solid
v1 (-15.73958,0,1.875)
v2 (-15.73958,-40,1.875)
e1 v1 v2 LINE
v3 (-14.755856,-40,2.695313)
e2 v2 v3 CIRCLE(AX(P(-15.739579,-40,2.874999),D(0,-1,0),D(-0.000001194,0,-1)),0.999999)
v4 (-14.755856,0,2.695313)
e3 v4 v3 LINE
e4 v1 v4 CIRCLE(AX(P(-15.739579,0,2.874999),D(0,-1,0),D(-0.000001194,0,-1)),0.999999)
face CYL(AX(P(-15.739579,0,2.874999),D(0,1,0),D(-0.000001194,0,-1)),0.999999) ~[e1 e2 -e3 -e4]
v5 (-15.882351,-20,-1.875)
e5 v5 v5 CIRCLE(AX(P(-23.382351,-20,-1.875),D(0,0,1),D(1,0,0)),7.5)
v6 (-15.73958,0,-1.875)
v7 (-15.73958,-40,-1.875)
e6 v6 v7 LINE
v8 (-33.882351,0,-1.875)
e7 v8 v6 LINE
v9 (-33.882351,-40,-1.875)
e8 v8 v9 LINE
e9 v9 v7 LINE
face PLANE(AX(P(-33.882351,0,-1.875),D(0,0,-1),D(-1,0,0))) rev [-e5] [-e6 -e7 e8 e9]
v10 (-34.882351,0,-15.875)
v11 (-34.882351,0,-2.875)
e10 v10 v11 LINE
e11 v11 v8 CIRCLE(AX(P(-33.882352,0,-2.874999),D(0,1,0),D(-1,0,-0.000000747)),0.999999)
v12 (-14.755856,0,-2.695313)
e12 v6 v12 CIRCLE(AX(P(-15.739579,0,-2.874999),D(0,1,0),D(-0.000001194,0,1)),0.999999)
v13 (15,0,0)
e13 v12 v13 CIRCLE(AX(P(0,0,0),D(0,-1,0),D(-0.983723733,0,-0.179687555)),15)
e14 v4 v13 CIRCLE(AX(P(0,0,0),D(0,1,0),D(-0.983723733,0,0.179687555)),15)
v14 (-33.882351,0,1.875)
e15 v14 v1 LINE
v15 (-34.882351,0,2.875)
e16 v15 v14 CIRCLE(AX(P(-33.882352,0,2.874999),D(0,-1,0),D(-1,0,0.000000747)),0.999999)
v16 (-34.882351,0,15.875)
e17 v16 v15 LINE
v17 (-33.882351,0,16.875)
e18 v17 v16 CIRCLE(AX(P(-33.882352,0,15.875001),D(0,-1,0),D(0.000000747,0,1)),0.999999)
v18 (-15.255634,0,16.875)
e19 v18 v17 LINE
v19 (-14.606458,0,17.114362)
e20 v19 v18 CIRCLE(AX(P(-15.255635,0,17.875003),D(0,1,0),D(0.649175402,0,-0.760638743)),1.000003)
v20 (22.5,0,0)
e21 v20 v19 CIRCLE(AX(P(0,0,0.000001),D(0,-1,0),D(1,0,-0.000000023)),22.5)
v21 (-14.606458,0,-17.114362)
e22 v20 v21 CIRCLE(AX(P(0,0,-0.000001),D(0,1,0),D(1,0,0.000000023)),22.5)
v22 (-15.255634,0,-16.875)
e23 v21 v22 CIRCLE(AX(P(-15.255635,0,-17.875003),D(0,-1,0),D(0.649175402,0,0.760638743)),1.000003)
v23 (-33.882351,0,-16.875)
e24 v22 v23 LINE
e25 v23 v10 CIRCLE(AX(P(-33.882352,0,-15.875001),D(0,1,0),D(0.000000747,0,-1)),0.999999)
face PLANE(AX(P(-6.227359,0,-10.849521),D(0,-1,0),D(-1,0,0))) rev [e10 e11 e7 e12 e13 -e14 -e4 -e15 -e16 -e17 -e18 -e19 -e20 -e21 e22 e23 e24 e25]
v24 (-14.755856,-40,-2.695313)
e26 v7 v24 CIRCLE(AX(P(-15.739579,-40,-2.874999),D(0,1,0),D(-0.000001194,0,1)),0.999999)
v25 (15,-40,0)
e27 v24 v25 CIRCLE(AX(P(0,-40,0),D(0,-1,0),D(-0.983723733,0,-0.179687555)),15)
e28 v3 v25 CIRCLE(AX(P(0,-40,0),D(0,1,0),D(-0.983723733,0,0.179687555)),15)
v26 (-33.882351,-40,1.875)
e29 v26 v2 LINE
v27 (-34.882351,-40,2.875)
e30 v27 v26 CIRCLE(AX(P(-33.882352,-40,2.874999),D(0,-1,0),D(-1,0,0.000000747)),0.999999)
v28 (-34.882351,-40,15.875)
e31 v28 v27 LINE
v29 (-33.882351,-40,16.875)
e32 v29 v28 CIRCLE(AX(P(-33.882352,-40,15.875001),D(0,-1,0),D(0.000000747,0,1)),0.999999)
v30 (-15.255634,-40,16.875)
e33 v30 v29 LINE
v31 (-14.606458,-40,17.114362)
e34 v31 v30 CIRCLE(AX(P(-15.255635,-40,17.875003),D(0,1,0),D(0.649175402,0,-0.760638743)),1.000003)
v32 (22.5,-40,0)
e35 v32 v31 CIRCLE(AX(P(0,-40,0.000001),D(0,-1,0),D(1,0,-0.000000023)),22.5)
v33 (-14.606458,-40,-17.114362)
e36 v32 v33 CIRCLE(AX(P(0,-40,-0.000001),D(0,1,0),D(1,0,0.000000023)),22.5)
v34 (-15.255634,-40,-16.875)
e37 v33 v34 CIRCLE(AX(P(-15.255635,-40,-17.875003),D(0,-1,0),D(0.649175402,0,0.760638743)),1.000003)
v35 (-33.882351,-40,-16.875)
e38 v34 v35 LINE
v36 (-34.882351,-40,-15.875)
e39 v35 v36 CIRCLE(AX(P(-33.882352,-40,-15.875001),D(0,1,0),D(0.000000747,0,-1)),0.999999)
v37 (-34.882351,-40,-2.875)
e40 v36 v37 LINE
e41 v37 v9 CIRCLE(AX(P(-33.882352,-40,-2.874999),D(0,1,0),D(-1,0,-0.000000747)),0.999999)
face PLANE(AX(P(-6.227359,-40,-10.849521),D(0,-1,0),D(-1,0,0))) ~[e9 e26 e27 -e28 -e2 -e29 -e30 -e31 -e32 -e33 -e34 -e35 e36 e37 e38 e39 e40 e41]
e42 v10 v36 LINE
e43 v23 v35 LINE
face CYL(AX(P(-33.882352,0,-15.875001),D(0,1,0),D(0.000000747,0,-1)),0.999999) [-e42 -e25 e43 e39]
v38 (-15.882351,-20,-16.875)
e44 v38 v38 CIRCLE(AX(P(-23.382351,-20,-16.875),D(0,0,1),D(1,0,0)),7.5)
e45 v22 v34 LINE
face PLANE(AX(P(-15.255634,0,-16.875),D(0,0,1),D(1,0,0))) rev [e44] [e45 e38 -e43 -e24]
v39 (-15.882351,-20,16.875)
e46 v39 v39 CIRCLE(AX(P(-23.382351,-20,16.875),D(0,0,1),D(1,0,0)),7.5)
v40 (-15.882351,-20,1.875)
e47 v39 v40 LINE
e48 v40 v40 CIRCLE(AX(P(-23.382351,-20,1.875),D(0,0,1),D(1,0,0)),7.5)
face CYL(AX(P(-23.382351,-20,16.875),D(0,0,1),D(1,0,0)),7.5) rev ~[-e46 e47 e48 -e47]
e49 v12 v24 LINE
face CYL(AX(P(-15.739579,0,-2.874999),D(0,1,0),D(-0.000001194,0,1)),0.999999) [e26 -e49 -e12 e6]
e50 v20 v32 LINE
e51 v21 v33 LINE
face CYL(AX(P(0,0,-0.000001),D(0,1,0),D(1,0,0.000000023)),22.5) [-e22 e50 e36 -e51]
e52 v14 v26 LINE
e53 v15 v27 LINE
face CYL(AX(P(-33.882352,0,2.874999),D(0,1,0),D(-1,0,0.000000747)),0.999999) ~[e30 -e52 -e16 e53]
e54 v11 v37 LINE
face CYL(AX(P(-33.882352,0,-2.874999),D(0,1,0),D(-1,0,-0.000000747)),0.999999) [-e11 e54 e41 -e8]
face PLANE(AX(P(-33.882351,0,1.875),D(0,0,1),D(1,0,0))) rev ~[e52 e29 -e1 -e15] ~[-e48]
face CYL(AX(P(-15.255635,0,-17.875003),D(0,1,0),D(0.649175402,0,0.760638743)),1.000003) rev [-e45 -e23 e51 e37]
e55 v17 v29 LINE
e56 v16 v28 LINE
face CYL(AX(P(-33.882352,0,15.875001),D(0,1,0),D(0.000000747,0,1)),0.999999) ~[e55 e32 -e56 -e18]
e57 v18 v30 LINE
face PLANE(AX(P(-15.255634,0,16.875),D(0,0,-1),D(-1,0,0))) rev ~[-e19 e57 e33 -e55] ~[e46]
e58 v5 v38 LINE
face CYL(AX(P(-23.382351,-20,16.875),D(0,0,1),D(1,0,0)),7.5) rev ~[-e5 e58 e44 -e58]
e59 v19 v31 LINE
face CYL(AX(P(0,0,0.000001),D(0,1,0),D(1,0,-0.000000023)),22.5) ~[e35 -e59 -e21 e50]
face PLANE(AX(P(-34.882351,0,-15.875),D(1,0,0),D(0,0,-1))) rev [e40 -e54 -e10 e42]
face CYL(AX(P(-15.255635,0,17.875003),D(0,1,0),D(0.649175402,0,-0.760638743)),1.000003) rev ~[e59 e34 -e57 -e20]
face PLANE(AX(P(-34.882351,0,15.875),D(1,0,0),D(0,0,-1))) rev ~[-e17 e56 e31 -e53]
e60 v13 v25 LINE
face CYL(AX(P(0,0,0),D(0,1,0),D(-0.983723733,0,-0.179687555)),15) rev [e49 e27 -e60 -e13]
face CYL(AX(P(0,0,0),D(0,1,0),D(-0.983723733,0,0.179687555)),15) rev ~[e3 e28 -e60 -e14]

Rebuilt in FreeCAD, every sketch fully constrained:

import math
import FreeCAD as App
import Part
import Sketcher

V = App.Vector
Q = App.Units.Quantity

doc = App.newDocument("Part")
body = doc.addObject("PartDesign::Body", "Body")

sketch1 = doc.addObject("Sketcher::SketchObject", "Sketch")
body.addObject(sketch1)
sketch1.AttachmentSupport = (doc.XZ_Plane, [""])
sketch1.MapMode = "FlatFace"
sketch1.addGeometry([
    Part.LineSegment(V(-34.9, 15.9, 0), V(-34.9, 2.9, 0)),
    Part.ArcOfCircle(Part.Circle(V(-33.9, 2.9, 0), V(0, 0, 1), 1), math.radians(180), math.radians(270)),
    Part.LineSegment(V(-33.9, 1.9, 0), V(-15.7, 1.9, 0)),
    Part.ArcOfCircle(Part.Circle(V(-15.7, 2.9, 0), V(0, 0, 1), 1), math.radians(-90), math.radians(-10)),
    Part.ArcOfCircle(Part.Circle(V(0, 0, 0), V(0, 0, 1), 15), math.radians(0), math.radians(170)),
    Part.LineSegment(V(15, 0, 0), V(22.5, 0, 0)),
    Part.ArcOfCircle(Part.Circle(V(0, 0, 0), V(0, 0, 1), 22.5), math.radians(0), math.radians(130)),
    Part.ArcOfCircle(Part.Circle(V(-15.3, 17.9, 0), V(0, 0, 1), 1), math.radians(-90), math.radians(-50)),
    Part.LineSegment(V(-15.3, 16.9, 0), V(-33.9, 16.9, 0)),
    Part.ArcOfCircle(Part.Circle(V(-33.9, 15.9, 0), V(0, 0, 1), 1), math.radians(90), math.radians(180)),
], False)
sketch1.addConstraint([
    Sketcher.Constraint("Tangent", 0, 2, 1, 1),
    Sketcher.Constraint("Tangent", 1, 2, 2, 1),
    Sketcher.Constraint("Tangent", 2, 2, 3, 1),
    Sketcher.Constraint("Tangent", 3, 2, 4, 2),
    Sketcher.Constraint("Coincident", 4, 1, 5, 1),
    Sketcher.Constraint("Coincident", 5, 2, 6, 1),
    Sketcher.Constraint("Tangent", 6, 2, 7, 2),
    Sketcher.Constraint("Tangent", 7, 1, 8, 1),
    Sketcher.Constraint("Tangent", 8, 2, 9, 1),
    Sketcher.Constraint("Tangent", 9, 2, 0, 1),
    Sketcher.Constraint("Vertical", 0),
    Sketcher.Constraint("Horizontal", 2),
    Sketcher.Constraint("Horizontal", 5),
    Sketcher.Constraint("Horizontal", 8),
    Sketcher.Constraint("Coincident", 4, 3, -1, 1),
    Sketcher.Constraint("Coincident", 6, 3, -1, 1),
    Sketcher.Constraint("Equal", 1, 3),
    Sketcher.Constraint("Equal", 3, 9),
    Sketcher.Constraint("PointOnObject", 4, 1, -1),
    Sketcher.Constraint("Radius", 1, Q("0.999999 mm")),
    Sketcher.Constraint("Radius", 4, Q("15 mm")),
    Sketcher.Constraint("Radius", 6, Q("22.5 mm")),
    Sketcher.Constraint("DistanceY", 0, 2, 0, 1, Q("13 mm")),
    Sketcher.Constraint("DistanceY", -1, 1, 1, 3, Q("2.874999 mm")),
    Sketcher.Constraint("Radius", 7, Q("1.000003 mm")),
    Sketcher.Constraint("DistanceX", 2, 1, 2, 2, Q("18.142771 mm")),
])
pad1 = doc.addObject("PartDesign::Pad", "Pad")
body.addObject(pad1)
pad1.Profile = sketch1
pad1.Length = 40
body2 = doc.addObject("PartDesign::Body", "Body001")
doc.recompute()

body2.BaseFeature = body
doc.recompute()

mirroring = doc.addObject("Part::Mirroring", "Mirroring")
mirroring.Source = body
mirroring.Base = V(18.75, -20, 0)
mirroring.Normal = V(0, 0, -1)
body3 = doc.addObject("PartDesign::Body", "Body002")
body3.BaseFeature = mirroring
boolean = doc.addObject("PartDesign::Boolean", "Boolean")
body2.addObject(boolean)
boolean.Type = "Fuse"
boolean.addObjects([body3])
doc.recompute()

sketch2 = doc.addObject("Sketcher::SketchObject", "Sketch001")
body2.addObject(sketch2)
sketch2.AttachmentSupport = (doc.getObject("XY_Plane001"), [""])
sketch2.MapMode = "FlatFace"
sketch2.AttachmentOffset = App.Placement(V(0, 0, 16.875), App.Rotation())
sketch2.addGeometry(Part.Circle(V(-23, -20, 0), V(0, 0, 1), 8), False)
sketch2.addConstraint([
    Sketcher.Constraint("Diameter", 0, Q("15 mm")),
    Sketcher.Constraint("DistanceY", 0, 3, -1, 1, Q("20 mm")),
    Sketcher.Constraint("DistanceX", 0, 3, -1, 1, Q("23.382351 mm")),
])
pocket1 = doc.addObject("PartDesign::Pocket", "Pocket")
body2.addObject(pocket1)
pocket1.Profile = sketch2
pocket1.Length = 45
mirroring.Visibility = False

doc.recompute()
